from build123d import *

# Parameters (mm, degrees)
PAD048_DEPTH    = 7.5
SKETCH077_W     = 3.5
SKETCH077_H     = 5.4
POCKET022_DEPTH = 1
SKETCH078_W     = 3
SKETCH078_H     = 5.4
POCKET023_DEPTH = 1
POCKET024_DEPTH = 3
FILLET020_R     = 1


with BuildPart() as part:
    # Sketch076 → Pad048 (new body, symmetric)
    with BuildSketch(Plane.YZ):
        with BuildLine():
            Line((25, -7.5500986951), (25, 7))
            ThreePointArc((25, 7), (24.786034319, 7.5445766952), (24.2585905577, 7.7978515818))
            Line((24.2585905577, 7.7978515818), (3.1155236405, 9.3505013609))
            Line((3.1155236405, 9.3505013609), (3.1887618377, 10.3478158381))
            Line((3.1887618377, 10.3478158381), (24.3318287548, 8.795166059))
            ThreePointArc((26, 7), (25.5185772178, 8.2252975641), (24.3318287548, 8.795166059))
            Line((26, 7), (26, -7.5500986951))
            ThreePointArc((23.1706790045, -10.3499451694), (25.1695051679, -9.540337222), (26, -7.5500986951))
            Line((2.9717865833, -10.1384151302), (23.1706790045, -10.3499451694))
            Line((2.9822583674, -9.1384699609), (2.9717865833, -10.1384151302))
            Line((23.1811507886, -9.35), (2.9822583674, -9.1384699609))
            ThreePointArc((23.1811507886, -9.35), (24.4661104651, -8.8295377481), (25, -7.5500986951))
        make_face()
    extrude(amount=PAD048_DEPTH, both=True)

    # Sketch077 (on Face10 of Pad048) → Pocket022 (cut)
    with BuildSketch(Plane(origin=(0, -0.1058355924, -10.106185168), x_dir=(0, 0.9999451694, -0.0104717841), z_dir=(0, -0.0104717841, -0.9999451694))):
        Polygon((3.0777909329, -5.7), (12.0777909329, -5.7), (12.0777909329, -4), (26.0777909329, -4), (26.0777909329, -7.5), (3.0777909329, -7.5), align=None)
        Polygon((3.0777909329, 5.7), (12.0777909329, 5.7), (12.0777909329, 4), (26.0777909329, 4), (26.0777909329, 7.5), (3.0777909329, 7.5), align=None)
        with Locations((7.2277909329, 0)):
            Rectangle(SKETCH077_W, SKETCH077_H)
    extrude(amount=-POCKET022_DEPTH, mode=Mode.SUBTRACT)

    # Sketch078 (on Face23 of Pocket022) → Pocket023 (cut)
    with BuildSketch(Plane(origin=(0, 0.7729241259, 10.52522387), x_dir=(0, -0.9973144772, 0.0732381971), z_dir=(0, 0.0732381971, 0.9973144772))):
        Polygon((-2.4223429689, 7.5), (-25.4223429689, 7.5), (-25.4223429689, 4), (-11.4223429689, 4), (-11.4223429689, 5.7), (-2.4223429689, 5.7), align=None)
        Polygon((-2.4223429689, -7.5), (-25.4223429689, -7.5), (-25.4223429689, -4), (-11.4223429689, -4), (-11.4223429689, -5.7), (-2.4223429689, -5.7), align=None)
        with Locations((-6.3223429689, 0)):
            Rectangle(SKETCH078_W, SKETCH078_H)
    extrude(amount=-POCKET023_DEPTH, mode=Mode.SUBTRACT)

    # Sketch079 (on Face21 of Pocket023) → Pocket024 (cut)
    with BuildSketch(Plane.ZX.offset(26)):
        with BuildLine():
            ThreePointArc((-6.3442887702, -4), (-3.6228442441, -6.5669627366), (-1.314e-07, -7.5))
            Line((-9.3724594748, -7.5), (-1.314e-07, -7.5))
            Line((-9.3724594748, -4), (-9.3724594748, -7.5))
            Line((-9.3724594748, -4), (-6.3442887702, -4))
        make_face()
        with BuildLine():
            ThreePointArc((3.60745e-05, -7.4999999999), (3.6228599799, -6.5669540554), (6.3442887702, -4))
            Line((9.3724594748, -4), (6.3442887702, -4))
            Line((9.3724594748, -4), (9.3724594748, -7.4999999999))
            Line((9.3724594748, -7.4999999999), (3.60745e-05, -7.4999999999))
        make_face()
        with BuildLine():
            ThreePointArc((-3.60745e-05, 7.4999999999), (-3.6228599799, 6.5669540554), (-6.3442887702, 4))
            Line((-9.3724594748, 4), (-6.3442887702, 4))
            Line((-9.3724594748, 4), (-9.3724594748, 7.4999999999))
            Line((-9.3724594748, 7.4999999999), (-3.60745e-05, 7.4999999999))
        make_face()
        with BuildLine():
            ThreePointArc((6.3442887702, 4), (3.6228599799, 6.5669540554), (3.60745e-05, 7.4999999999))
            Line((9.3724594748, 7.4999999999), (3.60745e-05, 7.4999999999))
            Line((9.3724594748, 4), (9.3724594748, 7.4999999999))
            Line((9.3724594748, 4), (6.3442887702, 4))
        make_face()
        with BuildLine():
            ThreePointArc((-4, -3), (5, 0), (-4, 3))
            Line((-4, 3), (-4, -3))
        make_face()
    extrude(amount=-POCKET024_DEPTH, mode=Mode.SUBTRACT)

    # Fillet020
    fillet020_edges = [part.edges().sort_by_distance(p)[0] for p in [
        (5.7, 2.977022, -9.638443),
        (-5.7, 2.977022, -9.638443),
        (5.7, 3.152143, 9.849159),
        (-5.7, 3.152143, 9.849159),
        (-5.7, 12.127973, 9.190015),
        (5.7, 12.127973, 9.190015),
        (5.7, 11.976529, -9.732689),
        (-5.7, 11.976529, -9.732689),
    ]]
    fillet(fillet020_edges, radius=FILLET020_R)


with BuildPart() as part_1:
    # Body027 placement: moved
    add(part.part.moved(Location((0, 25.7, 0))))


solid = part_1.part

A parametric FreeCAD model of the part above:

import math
import FreeCAD as App
import Part
import Sketcher
from FreeCAD import Vector
Q = App.Units.Quantity


def edges_at(feature, points):
    """Names of the edges that pass closest to the given points."""
    edges = feature.Shape.Edges
    near = lambda p: min(range(len(edges)), key=lambda i: edges[i].distToShape(Part.Vertex(*p))[0])
    return sorted({f"Edge{near(p) + 1}" for p in points})


def add_polygon(sketch, points):
    """Adds a closed chain of lines whose ends are joined by coincident constraints."""
    first, n = sketch.GeometryCount, len(points)
    for a, b in zip(points, points[1:] + points[:1]):
        sketch.addGeometry(Part.LineSegment(App.Vector(*a, 0), App.Vector(*b, 0)), False)
    for i in range(n):
        sketch.addConstraint(Sketcher.Constraint("Coincident", first + i, 2, first + (i + 1) % n, 1))

doc = App.newDocument("Part")
params = doc.addObject("Spreadsheet::Sheet", "Params")
for row, (alias, value) in enumerate([
    ("sketch1_radius", "1.8 mm"),
    ("sketch1_radius2", "2.8 mm"),
    ("sketch1_length", "20.2 mm"),
    ("sketch1_length2", "21.2 mm"),
    ("pad1_length", "15 mm"),
    ("sketch2_width", "9 mm"),
    ("sketch2_width2", "23 mm"),
    ("sketch2_width3", "3.5 mm"),
    ("sketch2_height", "1.8 mm"),
    ("sketch2_height2", "5.4 mm"),
    ("pocket1_length", "1 mm"),
    ("sketch3_width", "23 mm"),
    ("sketch3_width2", "14 mm"),
    ("sketch3_width3", "3 mm"),
    ("sketch3_height", "3.5 mm"),
    ("sketch3_height2", "1.7 mm"),
    ("pocket2_length", "1 mm"),
    ("sketch4_radius", "5 mm"),
    ("sketch4_radius2", "7.5 mm"),
    ("sketch4_width", "6 mm"),
    ("sketch4_width2", "3.5 mm"),
    ("pocket3_length", "3 mm"),
    ("fillet_radius", "1 mm"),
], start=1):
    params.set(f"A{row}", alias)
    params.set(f"B{row}", "=" + value)
    params.setAlias(f"B{row}", alias)

body = doc.addObject("PartDesign::Body", "Body")

sketch1 = doc.addObject("Sketcher::SketchObject", "Sketch")
body.addObject(sketch1)
sketch1.AttachmentSupport = (doc.YZ_Plane, [""])
sketch1.MapMode = "FlatFace"
sketch1.addGeometry([
    Part.LineSegment(Vector(25, 7, 0), Vector(25, -7.550099, 0)),
    Part.ArcOfCircle(Part.Circle(Vector(23.2, -7.550099, 0), Vector(0, 0, 1), 1.8), math.radians(-90.6), math.radians(0)),
    Part.LineSegment(Vector(23.181151, -9.35, 0), Vector(2.982258, -9.13847, 0)),
    Part.LineSegment(Vector(2.982258, -9.13847, 0), Vector(2.971787, -10.138415, 0)),
    Part.LineSegment(Vector(2.971787, -10.138415, 0), Vector(23.170679, -10.349945, 0)),
    Part.ArcOfCircle(Part.Circle(Vector(23.2, -7.550099, 0), Vector(0, 0, 1), 2.8), math.radians(-90.6), math.radians(0)),
    Part.LineSegment(Vector(26, -7.550099, 0), Vector(26, 7, 0)),
    Part.ArcOfCircle(Part.Circle(Vector(24.2, 7, 0), Vector(0, 0, 1), 1.8), math.radians(0), math.radians(85.8)),
    Part.LineSegment(Vector(24.331829, 8.795166, 0), Vector(3.188762, 10.347816, 0)),
    Part.LineSegment(Vector(3.188762, 10.347816, 0), Vector(3.115524, 9.350501, 0)),
    Part.LineSegment(Vector(3.115524, 9.350501, 0), Vector(24.258591, 7.797852, 0)),
    Part.ArcOfCircle(Part.Circle(Vector(24.2, 7, 0), Vector(0, 0, 1), 0.8), math.radians(0), math.radians(85.8)),
], False)
sketch1.addConstraint([
    Sketcher.Constraint("Tangent", 0, 2, 1, 2),
    Sketcher.Constraint("Tangent", 1, 1, 2, 1),
    Sketcher.Constraint("Coincident", 2, 2, 3, 1),
    Sketcher.Constraint("Coincident", 3, 2, 4, 1),
    Sketcher.Constraint("Tangent", 4, 2, 5, 1),
    Sketcher.Constraint("Tangent", 5, 2, 6, 1),
    Sketcher.Constraint("Tangent", 6, 2, 7, 1),
    Sketcher.Constraint("Tangent", 7, 2, 8, 1),
    Sketcher.Constraint("Coincident", 8, 2, 9, 1),
    Sketcher.Constraint("Coincident", 9, 2, 10, 1),
    Sketcher.Constraint("Tangent", 10, 2, 11, 2),
    Sketcher.Constraint("Tangent", 11, 1, 0, 1),
    Sketcher.Constraint("Vertical", 0),
    Sketcher.Constraint("Vertical", 6),
    Sketcher.Constraint("Coincident", 5, 3, 1, 3),
    Sketcher.Constraint("Coincident", 11, 3, 7, 3),
    Sketcher.Constraint("Equal", 1, 7),
    Sketcher.Constraint("Perpendicular", 2, 3),
    Sketcher.Constraint("Perpendicular", 3, 4),
    Sketcher.Constraint("Perpendicular", 8, 9),
    Sketcher.Constraint("Perpendicular", 9, 10),
    Sketcher.Constraint("Radius", 1, Q("1.8 mm")),
    Sketcher.Constraint("Radius", 5, Q("2.8 mm")),
    Sketcher.Constraint("DistanceY", -1, 1, 7, 3, Q("7 mm")),
    Sketcher.Constraint("DistanceX", -1, 1, 0, 2, Q("25 mm")),
    Sketcher.Constraint("Angle", 2, Q("179.4 deg")),
    Sketcher.Constraint("Angle", 8, Q("175.8 deg")),
    Sketcher.Constraint("Distance", 2, Q("20.2 mm")),
    Sketcher.Constraint("Distance", 8, Q("21.2 mm")),
    Sketcher.Constraint("DistanceY", 1, 1, -1, 1, Q("9.35 mm")),
])
sketch1.setExpression("Constraints[21]", "Params.sketch1_radius")
sketch1.setExpression("Constraints[22]", "Params.sketch1_radius2")
sketch1.setExpression("Constraints[27]", "Params.sketch1_length")
sketch1.setExpression("Constraints[28]", "Params.sketch1_length2")
pad1 = doc.addObject("PartDesign::Pad", "Pad")
body.addObject(pad1)
pad1.Profile = sketch1
pad1.setExpression("Length", "Params.pad1_length")
pad1.Midplane = True

sketch2 = doc.addObject("Sketcher::SketchObject", "Sketch001")
body.addObject(sketch2)
sketch2.Placement = App.Placement(Vector(0, -0.105836, -10.106185), App.Rotation(Vector(0, 0.999945169, -0.010471784), Vector(0.999999999, 0, 0), Vector(0, -0.010471784, -0.999945169), "ZXY"))
add_polygon(sketch2, [(12.077791, -5.7), (3.077791, -5.7), (3.077791, -7.5), (26.077791, -7.5), (26.077791, -4), (12.077791, -4)])
add_polygon(sketch2, [(3.077791, 5.7), (12.077791, 5.7), (12.077791, 4), (26.077791, 4), (26.077791, 7.5), (3.077791, 7.5)])
add_polygon(sketch2, [(5.477791, 2.7), (5.477791, -2.7), (8.977791, -2.7), (8.977791, 2.7)])
sketch2.addConstraint([
    Sketcher.Constraint("Horizontal", 0),
    Sketcher.Constraint("Vertical", 1),
    Sketcher.Constraint("Horizontal", 2),
    Sketcher.Constraint("Vertical", 3),
    Sketcher.Constraint("Horizontal", 4),
    Sketcher.Constraint("Vertical", 5),
    Sketcher.Constraint("Horizontal", 6),
    Sketcher.Constraint("Vertical", 7),
    Sketcher.Constraint("Horizontal", 8),
    Sketcher.Constraint("Vertical", 9),
    Sketcher.Constraint("Horizontal", 10),
    Sketcher.Constraint("Vertical", 11),
    Sketcher.Constraint("Vertical", 12),
    Sketcher.Constraint("Horizontal", 13),
    Sketcher.Constraint("Vertical", 14),
    Sketcher.Constraint("Horizontal", 15),
    Sketcher.Constraint("Symmetric", 5, 2, 6, 2, -1),
    Sketcher.Constraint("Symmetric", 3, 2, 8, 2, -1),
    Sketcher.Constraint("Symmetric", 1, 2, 10, 2, -1),
    Sketcher.Constraint("Equal", 15, 3),
    Sketcher.Constraint("DistanceX", 0, 2, 0, 1, Q("9 mm")),
    Sketcher.Constraint("DistanceX", 2, 1, 2, 2, Q("23 mm")),
    Sketcher.Constraint("DistanceX", 13, 1, 13, 2, Q("3.5 mm")),
    Sketcher.Constraint("DistanceY", 1, 2, 1, 1, Q("1.8 mm")),
    Sketcher.Constraint("DistanceY", 12, 2, 12, 1, Q("5.4 mm")),
    Sketcher.Constraint("DistanceY", 3, 2, -1, 1, Q("4 mm")),
    Sketcher.Constraint("DistanceY", 0, 2, 12, 2, Q("3 mm")),
    Sketcher.Constraint("DistanceX", 0, 2, 12, 2, Q("2.4 mm")),
    Sketcher.Constraint("DistanceX", -1, 1, 0, 2, Q("3.077791 mm")),
])
sketch2.setExpression("Constraints[36]", "Params.sketch2_width")
sketch2.setExpression("Constraints[37]", "Params.sketch2_width2")
sketch2.setExpression("Constraints[38]", "Params.sketch2_width3")
sketch2.setExpression("Constraints[39]", "Params.sketch2_height")
sketch2.setExpression("Constraints[40]", "Params.sketch2_height2")
pocket1 = doc.addObject("PartDesign::Pocket", "Pocket")
body.addObject(pocket1)
pocket1.Profile = sketch2
pocket1.setExpression("Length", "Params.pocket1_length")

sketch3 = doc.addObject("Sketcher::SketchObject", "Sketch002")
body.addObject(sketch3)
sketch3.Placement = App.Placement(Vector(0, 0.772924, 10.525224), App.Rotation(Vector(0, -0.997314477, 0.073238197), Vector(1, 0, 0), Vector(0, 0.073238197, 0.997314477), "ZXY"))
add_polygon(sketch3, [(-2.422343, 7.5), (-25.422343, 7.5), (-25.422343, 4), (-11.422343, 4), (-11.422343, 5.7), (-2.422343, 5.7)])
add_polygon(sketch3, [(-25.422343, -7.5), (-2.422343, -7.5), (-2.422343, -5.7), (-11.422343, -5.7), (-11.422343, -4), (-25.422343, -4)])
add_polygon(sketch3, [(-7.822343, 2.7), (-7.822343, -2.7), (-4.822343, -2.7), (-4.822343, 2.7)])
sketch3.addConstraint([
    Sketcher.Constraint("Horizontal", 0),
    Sketcher.Constraint("Vertical", 1),
    Sketcher.Constraint("Horizontal", 2),
    Sketcher.Constraint("Vertical", 3),
    Sketcher.Constraint("Horizontal", 4),
    Sketcher.Constraint("Vertical", 5),
    Sketcher.Constraint("Horizontal", 6),
    Sketcher.Constraint("Vertical", 7),
    Sketcher.Constraint("Horizontal", 8),
    Sketcher.Constraint("Vertical", 9),
    Sketcher.Constraint("Horizontal", 10),
    Sketcher.Constraint("Vertical", 11),
    Sketcher.Constraint("Vertical", 12),
    Sketcher.Constraint("Horizontal", 13),
    Sketcher.Constraint("Vertical", 14),
    Sketcher.Constraint("Horizontal", 15),
    Sketcher.Constraint("Symmetric", 5, 2, 6, 2, -1),
    Sketcher.Constraint("Symmetric", 3, 2, 8, 2, -1),
    Sketcher.Constraint("Symmetric", 1, 2, 10, 2, -1),
    Sketcher.Constraint("DistanceX", 0, 2, 0, 1, Q("23 mm")),
    Sketcher.Constraint("DistanceX", 2, 1, 2, 2, Q("14 mm")),
    Sketcher.Constraint("DistanceX", 13, 1, 13, 2, Q("3 mm")),
    Sketcher.Constraint("DistanceY", 1, 2, 1, 1, Q("3.5 mm")),
    Sketcher.Constraint("DistanceY", 3, 1, 3, 2, Q("1.7 mm")),
    Sketcher.Constraint("DistanceY", 12, 2, 12, 1, Q("5.4 mm")),
    Sketcher.Constraint("DistanceY", -1, 1, 1, 2, Q("4 mm")),
    Sketcher.Constraint("DistanceY", 8, 2, 12, 2, Q("3 mm")),
    Sketcher.Constraint("DistanceX", 9, 2, 12, 2, Q("3.6 mm")),
    Sketcher.Constraint("DistanceX", 0, 2, -1, 1, Q("25.422343 mm")),
])
sketch3.setExpression("Constraints[35]", "Params.sketch3_width")
sketch3.setExpression("Constraints[36]", "Params.sketch3_width2")
sketch3.setExpression("Constraints[37]", "Params.sketch3_width3")
sketch3.setExpression("Constraints[38]", "Params.sketch3_height")
sketch3.setExpression("Constraints[39]", "Params.sketch3_height2")
pocket2 = doc.addObject("PartDesign::Pocket", "Pocket001")
body.addObject(pocket2)
pocket2.Profile = sketch3
pocket2.setExpression("Length", "Params.pocket2_length")

sketch4 = doc.addObject("Sketcher::SketchObject", "Sketch003")
body.addObject(sketch4)
sketch4.AttachmentSupport = (doc.XZ_Plane, [""])
sketch4.MapMode = "FlatFace"
sketch4.AttachmentOffset = App.Placement(Vector(0, 0, -26), App.Rotation())
sketch4.addGeometry([
    Part.ArcOfCircle(Part.Circle(Vector(0, 0, 0), Vector(0, 0, 1), 7.5), math.radians(-179.999999), math.radians(-122.230953)),
    Part.LineSegment(Vector(-4, -6.344289, 0), Vector(-4, -9.372459, 0)),
    Part.LineSegment(Vector(-4, -9.372459, 0), Vector(-7.5, -9.372459, 0)),
    Part.LineSegment(Vector(-7.5, -9.372459, 0), Vector(-7.5, 0, 0)),
    Part.ArcOfCircle(Part.Circle(Vector(0, 0, 0), Vector(0, 0, 1), 7.5), math.radians(122.230953), math.radians(179.999724)),
    Part.LineSegment(Vector(-7.5, 0.000036, 0), Vector(-7.5, 9.372459, 0)),
    Part.LineSegment(Vector(-7.5, 9.372459, 0), Vector(-4, 9.372459, 0)),
    Part.LineSegment(Vector(-4, 9.372459, 0), Vector(-4, 6.344289, 0)),
    Part.ArcOfCircle(Part.Circle(Vector(0, 0, 0), Vector(0, 0, 1), 7.5), math.radians(-57.769047), math.radians(-0.000276)),
    Part.LineSegment(Vector(7.5, -0.000036, 0), Vector(7.5, -9.372459, 0)),
    Part.LineSegment(Vector(7.5, -9.372459, 0), Vector(4, -9.372459, 0)),
    Part.LineSegment(Vector(4, -9.372459, 0), Vector(4, -6.344289, 0)),
    Part.ArcOfCircle(Part.Circle(Vector(0, 0, 0), Vector(0, 0, 1), 7.5), math.radians(0.000276), math.radians(57.769047)),
    Part.LineSegment(Vector(4, 6.344289, 0), Vector(4, 9.372459, 0)),
    Part.LineSegment(Vector(4, 9.372459, 0), Vector(7.5, 9.372459, 0)),
    Part.LineSegment(Vector(7.5, 9.372459, 0), Vector(7.5, 0.000036, 0)),
    Part.ArcOfCircle(Part.Circle(Vector(0, 0, 0), Vector(0, 0, 1), 5), math.radians(-53.130102), math.radians(233.130102)),
    Part.LineSegment(Vector(3, -4, 0), Vector(-3, -4, 0)),
], False)
sketch4.addConstraint([
    Sketcher.Constraint("Coincident", 0, 2, 1, 1),
    Sketcher.Constraint("Coincident", 1, 2, 2, 1),
    Sketcher.Constraint("Coincident", 2, 2, 3, 1),
    Sketcher.Constraint("Tangent", 3, 2, 0, 1),
    Sketcher.Constraint("Coincident", 4, 2, 5, 1),
    Sketcher.Constraint("Coincident", 5, 2, 6, 1),
    Sketcher.Constraint("Coincident", 6, 2, 7, 1),
    Sketcher.Constraint("Coincident", 7, 2, 4, 1),
    Sketcher.Constraint("Coincident", 8, 2, 9, 1),
    Sketcher.Constraint("Coincident", 9, 2, 10, 1),
    Sketcher.Constraint("Coincident", 10, 2, 11, 1),
    Sketcher.Constraint("Coincident", 11, 2, 8, 1),
    Sketcher.Constraint("Coincident", 12, 2, 13, 1),
    Sketcher.Constraint("Coincident", 13, 2, 14, 1),
    Sketcher.Constraint("Coincident", 14, 2, 15, 1),
    Sketcher.Constraint("Coincident", 15, 2, 12, 1),
    Sketcher.Constraint("Coincident", 16, 1, 17, 1),
    Sketcher.Constraint("Coincident", 17, 2, 16, 2),
    Sketcher.Constraint("Vertical", 1),
    Sketcher.Constraint("Horizontal", 2),
    Sketcher.Constraint("Vertical", 3),
    Sketcher.Constraint("Vertical", 5),
    Sketcher.Constraint("Horizontal", 6),
    Sketcher.Constraint("Vertical", 7),
    Sketcher.Constraint("Vertical", 9),
    Sketcher.Constraint("Horizontal", 10),
    Sketcher.Constraint("Vertical", 11),
    Sketcher.Constraint("Vertical", 13),
    Sketcher.Constraint("Horizontal", 14),
    Sketcher.Constraint("Vertical", 15),
    Sketcher.Constraint("Horizontal", 17),
    Sketcher.Constraint("Coincident", 0, 3, -1, 1),
    Sketcher.Constraint("Coincident", 4, 3, -1, 1),
    Sketcher.Constraint("Coincident", 8, 3, -1, 1),
    Sketcher.Constraint("Coincident", 12, 3, -1, 1),
    Sketcher.Constraint("Coincident", 16, 3, -1, 1),
    Sketcher.Constraint("Equal", 0, 4),
    Sketcher.Constraint("Equal", 4, 8),
    Sketcher.Constraint("Equal", 8, 12),
    Sketcher.Constraint("Symmetric", 6, 2, 10, 2, -1, 1),
    Sketcher.Constraint("Symmetric", 1, 2, 13, 2, -1, 1),
    Sketcher.Constraint("Symmetric", 1, 2, 10, 2, -2),
    Sketcher.Constraint("Horizontal", 4, 2, 15, 2),
    Sketcher.Constraint("Equal", 5, 9),
    Sketcher.Constraint("Radius", 16, Q("5 mm")),
    Sketcher.Constraint("Radius", 0, Q("7.5 mm")),
    Sketcher.Constraint("DistanceX", 17, 2, 17, 1, Q("6 mm")),
    Sketcher.Constraint("DistanceX", 2, 2, 2, 1, Q("3.5 mm")),
    Sketcher.Constraint("DistanceY", 1, 2, 1, 1, Q("3.028171 mm")),
    Sketcher.Constraint("DistanceY", 5, 1, 5, 2, Q("9.372423 mm")),
])
sketch4.setExpression("Constraints[44]", "Params.sketch4_radius")
sketch4.setExpression("Constraints[45]", "Params.sketch4_radius2")
sketch4.setExpression("Constraints[46]", "Params.sketch4_width")
sketch4.setExpression("Constraints[47]", "Params.sketch4_width2")
pocket3 = doc.addObject("PartDesign::Pocket", "Pocket002")
body.addObject(pocket3)
pocket3.Profile = sketch4
pocket3.setExpression("Length", "Params.pocket3_length")
pocket3.Reversed = True
doc.recompute()

fillet = doc.addObject("PartDesign::Fillet", "Fillet")
body.addObject(fillet)
fillet.Base = (pocket3, edges_at(pocket3, [
    (5.7, 2.977, -9.638),
    (-5.7, 2.977, -9.638),
    (5.7, 3.152, 9.849),
    (-5.7, 3.152, 9.849),
    (-5.7, 12.128, 9.19),
    (5.7, 12.128, 9.19),
    (5.7, 11.977, -9.733),
    (-5.7, 11.977, -9.733),
]))
fillet.setExpression("Radius", "Params.fillet_radius")
body2 = doc.addObject("PartDesign::Body", "Body001")
doc.recompute()

body.Placement = App.Placement(Vector(0, 25.7, 0), App.Rotation(Vector(0, 0, 1), 0))
boolean = doc.addObject("PartDesign::Boolean", "Boolean")
body2.addObject(boolean)
boolean.Type = "Fuse"
boolean.addObjects([body])

doc.recompute()
